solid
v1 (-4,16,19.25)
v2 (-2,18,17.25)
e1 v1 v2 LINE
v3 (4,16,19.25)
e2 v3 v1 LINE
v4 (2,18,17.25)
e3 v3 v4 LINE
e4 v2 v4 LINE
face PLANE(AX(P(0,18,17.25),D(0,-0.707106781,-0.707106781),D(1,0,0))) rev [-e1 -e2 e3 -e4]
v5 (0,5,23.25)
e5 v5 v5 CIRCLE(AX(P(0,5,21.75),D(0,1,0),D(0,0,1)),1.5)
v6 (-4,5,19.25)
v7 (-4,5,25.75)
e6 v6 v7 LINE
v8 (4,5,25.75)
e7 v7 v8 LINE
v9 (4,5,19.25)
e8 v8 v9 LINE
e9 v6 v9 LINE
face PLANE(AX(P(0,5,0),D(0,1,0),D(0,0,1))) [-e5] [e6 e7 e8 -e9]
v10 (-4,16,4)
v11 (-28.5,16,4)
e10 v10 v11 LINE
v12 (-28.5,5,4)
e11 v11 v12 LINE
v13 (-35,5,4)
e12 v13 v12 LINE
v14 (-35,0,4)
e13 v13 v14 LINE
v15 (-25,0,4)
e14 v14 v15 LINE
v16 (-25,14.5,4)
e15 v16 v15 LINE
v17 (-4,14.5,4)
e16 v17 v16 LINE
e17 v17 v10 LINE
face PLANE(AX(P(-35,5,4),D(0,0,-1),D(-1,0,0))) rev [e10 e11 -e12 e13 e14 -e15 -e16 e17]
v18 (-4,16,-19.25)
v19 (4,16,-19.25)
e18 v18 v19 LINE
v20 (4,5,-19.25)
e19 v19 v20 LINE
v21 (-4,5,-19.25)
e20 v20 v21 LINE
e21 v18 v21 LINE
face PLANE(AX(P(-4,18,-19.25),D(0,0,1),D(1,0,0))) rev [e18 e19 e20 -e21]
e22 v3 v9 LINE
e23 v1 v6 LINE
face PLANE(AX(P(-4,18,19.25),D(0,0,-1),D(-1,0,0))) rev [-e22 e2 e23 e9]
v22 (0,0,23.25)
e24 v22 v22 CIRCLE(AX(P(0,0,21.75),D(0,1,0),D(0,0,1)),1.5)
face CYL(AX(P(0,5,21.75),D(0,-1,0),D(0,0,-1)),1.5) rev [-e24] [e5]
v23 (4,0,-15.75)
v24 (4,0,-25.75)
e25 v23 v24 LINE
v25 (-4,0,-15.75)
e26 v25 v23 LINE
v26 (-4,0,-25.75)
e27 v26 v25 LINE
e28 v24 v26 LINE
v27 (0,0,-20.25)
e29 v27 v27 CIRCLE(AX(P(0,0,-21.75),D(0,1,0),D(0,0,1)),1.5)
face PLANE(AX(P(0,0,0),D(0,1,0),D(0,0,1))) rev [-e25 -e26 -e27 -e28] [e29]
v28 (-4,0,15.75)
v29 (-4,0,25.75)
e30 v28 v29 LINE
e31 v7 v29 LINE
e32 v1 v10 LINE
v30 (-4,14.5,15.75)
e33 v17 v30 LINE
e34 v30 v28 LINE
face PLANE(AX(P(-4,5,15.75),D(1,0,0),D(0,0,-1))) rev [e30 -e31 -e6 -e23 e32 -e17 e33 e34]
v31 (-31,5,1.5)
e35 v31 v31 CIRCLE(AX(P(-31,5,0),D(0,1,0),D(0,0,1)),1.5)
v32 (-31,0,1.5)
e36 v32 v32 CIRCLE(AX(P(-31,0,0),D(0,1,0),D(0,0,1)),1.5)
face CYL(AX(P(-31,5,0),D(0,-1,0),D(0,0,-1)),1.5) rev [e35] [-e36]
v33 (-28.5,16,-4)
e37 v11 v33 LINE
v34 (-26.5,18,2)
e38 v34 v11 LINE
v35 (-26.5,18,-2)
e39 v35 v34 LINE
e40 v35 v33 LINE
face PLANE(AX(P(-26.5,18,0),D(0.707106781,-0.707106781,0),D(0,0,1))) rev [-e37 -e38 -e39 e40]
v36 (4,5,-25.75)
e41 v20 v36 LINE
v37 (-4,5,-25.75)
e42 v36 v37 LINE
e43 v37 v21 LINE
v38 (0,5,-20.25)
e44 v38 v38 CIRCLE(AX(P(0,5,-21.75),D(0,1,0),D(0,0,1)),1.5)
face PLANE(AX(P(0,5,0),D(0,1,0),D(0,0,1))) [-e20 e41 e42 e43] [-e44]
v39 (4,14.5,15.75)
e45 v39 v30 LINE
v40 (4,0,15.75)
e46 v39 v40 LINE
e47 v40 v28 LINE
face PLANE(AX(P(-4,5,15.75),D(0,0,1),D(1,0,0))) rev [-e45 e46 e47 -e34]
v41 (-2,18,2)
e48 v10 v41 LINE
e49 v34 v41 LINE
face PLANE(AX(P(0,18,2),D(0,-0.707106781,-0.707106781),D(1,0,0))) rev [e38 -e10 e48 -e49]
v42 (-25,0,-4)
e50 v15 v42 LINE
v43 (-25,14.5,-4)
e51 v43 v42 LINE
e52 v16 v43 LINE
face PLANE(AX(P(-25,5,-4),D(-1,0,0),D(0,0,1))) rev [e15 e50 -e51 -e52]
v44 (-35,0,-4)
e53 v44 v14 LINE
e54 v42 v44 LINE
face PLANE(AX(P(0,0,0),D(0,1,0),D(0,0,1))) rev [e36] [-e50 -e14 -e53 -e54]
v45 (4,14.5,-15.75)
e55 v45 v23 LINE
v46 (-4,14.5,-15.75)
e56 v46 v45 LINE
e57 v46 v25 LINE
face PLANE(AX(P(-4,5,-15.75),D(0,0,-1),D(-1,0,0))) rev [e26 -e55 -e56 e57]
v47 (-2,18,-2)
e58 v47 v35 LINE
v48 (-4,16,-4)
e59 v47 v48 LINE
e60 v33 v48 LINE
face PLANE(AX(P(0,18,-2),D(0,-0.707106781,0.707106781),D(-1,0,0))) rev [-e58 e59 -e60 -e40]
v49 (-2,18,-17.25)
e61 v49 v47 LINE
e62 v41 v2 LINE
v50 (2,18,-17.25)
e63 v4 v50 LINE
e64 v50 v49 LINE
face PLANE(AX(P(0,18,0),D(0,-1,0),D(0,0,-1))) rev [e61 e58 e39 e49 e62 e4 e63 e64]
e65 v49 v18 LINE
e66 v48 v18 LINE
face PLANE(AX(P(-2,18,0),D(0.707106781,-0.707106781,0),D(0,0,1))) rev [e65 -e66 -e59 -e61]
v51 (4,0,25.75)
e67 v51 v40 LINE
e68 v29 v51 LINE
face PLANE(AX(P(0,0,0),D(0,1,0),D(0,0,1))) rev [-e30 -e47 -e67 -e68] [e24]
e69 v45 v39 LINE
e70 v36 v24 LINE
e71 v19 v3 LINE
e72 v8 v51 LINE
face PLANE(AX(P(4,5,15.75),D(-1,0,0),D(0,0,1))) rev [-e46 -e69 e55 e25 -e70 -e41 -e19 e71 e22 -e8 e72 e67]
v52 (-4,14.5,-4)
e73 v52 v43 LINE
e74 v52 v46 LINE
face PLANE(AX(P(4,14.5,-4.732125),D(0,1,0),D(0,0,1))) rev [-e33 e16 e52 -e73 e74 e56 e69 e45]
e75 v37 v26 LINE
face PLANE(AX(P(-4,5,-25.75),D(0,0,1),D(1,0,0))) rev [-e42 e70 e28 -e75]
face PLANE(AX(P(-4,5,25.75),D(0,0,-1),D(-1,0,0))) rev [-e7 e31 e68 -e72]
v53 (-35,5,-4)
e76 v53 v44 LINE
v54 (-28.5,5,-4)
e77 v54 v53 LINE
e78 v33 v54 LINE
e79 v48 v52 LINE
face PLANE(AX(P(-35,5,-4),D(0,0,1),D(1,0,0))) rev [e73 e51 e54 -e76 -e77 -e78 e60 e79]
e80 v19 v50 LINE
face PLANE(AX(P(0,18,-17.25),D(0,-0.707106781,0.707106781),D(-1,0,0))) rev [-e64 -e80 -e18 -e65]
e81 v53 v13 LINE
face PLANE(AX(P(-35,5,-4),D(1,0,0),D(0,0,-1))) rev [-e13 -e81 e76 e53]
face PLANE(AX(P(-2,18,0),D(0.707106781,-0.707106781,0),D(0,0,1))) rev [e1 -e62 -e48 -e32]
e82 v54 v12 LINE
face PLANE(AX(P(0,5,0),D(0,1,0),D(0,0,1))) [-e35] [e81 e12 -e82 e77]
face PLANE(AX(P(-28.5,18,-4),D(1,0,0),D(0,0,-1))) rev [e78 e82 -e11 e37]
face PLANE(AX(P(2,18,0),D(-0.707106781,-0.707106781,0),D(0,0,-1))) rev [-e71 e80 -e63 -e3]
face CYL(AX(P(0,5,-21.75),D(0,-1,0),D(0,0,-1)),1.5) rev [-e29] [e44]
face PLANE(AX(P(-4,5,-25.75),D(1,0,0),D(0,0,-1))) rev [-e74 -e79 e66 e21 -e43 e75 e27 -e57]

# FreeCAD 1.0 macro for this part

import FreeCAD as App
import Part
import Sketcher
Q = App.Units.Quantity


def edges_at(feature, points):
    """Names of the edges that pass closest to the given points."""
    edges = feature.Shape.Edges
    near = lambda p: min(range(len(edges)), key=lambda i: edges[i].distToShape(Part.Vertex(*p))[0])
    return sorted({f"Edge{near(p) + 1}" for p in points})


def add_polygon(sketch, points):
    """Adds a closed chain of lines whose ends are joined by coincident constraints."""
    first, n = sketch.GeometryCount, len(points)
    for a, b in zip(points, points[1:] + points[:1]):
        sketch.addGeometry(Part.LineSegment(App.Vector(*a, 0), App.Vector(*b, 0)), False)
    for i in range(n):
        sketch.addConstraint(Sketcher.Constraint("Coincident", first + i, 2, first + (i + 1) % n, 1))

doc = App.newDocument("Part")
body = doc.addObject("PartDesign::Body", "Body")

# Sketch on XZ plane
sketch1 = body.newObject("Sketcher::SketchObject", "Sketch")
sketch1.AttachmentSupport = (doc.getObject("XZ_Plane"), [""])
sketch1.MapMode = "FlatFace"
add_polygon(sketch1, [(-35, -4), (-35, 4), (-25, 4), (-25, -4)])  # lines 0-3
sketch1.addGeometry(Part.Circle(App.Vector(-31, 0, 0), App.Vector(0, 0, 1), 1.5), False)  # 4
sketch1.addConstraint(Sketcher.Constraint("Vertical", 0))
sketch1.addConstraint(Sketcher.Constraint("Horizontal", 1))
sketch1.addConstraint(Sketcher.Constraint("Vertical", 2))
sketch1.addConstraint(Sketcher.Constraint("Horizontal", 3))
sketch1.addConstraint(Sketcher.Constraint("PointOnObject", 4, 3, -1))
sketch1.addConstraint(Sketcher.Constraint("Diameter", 4, Q("3 mm")))
sketch1.addConstraint(Sketcher.Constraint("DistanceX", 1, 1, 1, 2, Q("10 mm")))
sketch1.addConstraint(Sketcher.Constraint("DistanceY", 0, 1, 0, 2, Q("8 mm")))
sketch1.addConstraint(Sketcher.Constraint("DistanceX", 4, 3, -1, 1, Q("31 mm")))
sketch1.addConstraint(Sketcher.Constraint("DistanceX", 0, 2, -1, 1, Q("35 mm")))
sketch1.addConstraint(Sketcher.Constraint("DistanceY", -1, 1, 0, 2, Q("4 mm")))
pad1 = body.newObject("PartDesign::Pad", "Pad")
pad1.Profile = sketch1
pad1.Length = 5
pad1.Reversed = True
body2 = doc.addObject("PartDesign::Body", "Body001")

# Sketch on XZ plane
sketch2 = body2.newObject("Sketcher::SketchObject", "Sketch001")
sketch2.AttachmentSupport = (doc.getObject("XZ_Plane001"), [""])
sketch2.MapMode = "FlatFace"
add_polygon(sketch2, [(-4, -25.8), (-4, -15.8), (4, -15.8), (4, -25.8)])  # lines 0-3
sketch2.addGeometry(Part.Circle(App.Vector(0, -21.8, 0), App.Vector(0, 0, 1), 1.5), False)  # 4
sketch2.addConstraint(Sketcher.Constraint("Vertical", 0))
sketch2.addConstraint(Sketcher.Constraint("Horizontal", 1))
sketch2.addConstraint(Sketcher.Constraint("Vertical", 2))
sketch2.addConstraint(Sketcher.Constraint("Horizontal", 3))
sketch2.addConstraint(Sketcher.Constraint("PointOnObject", 4, 3, -2))
sketch2.addConstraint(Sketcher.Constraint("Diameter", 4, Q("3 mm")))
sketch2.addConstraint(Sketcher.Constraint("DistanceX", 1, 1, 1, 2, Q("8 mm")))
sketch2.addConstraint(Sketcher.Constraint("DistanceY", 0, 1, 0, 2, Q("10 mm")))
sketch2.addConstraint(Sketcher.Constraint("DistanceX", 0, 2, -1, 1, Q("4 mm")))
sketch2.addConstraint(Sketcher.Constraint("DistanceY", 4, 3, 0, 2, Q("6 mm")))
sketch2.addConstraint(Sketcher.Constraint("DistanceY", 4, 3, -1, 1, Q("21.75 mm")))
pad2 = body2.newObject("PartDesign::Pad", "Pad001")
pad2.Profile = sketch2
pad2.Length = 5
pad2.Reversed = True
body3 = doc.addObject("PartDesign::Body", "Body002")

# Sketch on XZ plane
sketch3 = body3.newObject("Sketcher::SketchObject", "Sketch002")
sketch3.AttachmentSupport = (doc.getObject("XZ_Plane002"), [""])
sketch3.MapMode = "FlatFace"
add_polygon(sketch3, [(-4, 15.8), (-4, 25.8), (4, 25.8), (4, 15.8)])  # lines 0-3
sketch3.addGeometry(Part.Circle(App.Vector(0, 21.8, 0), App.Vector(0, 0, 1), 1.5), False)  # 4
sketch3.addConstraint(Sketcher.Constraint("Vertical", 0))
sketch3.addConstraint(Sketcher.Constraint("Horizontal", 1))
sketch3.addConstraint(Sketcher.Constraint("Vertical", 2))
sketch3.addConstraint(Sketcher.Constraint("Horizontal", 3))
sketch3.addConstraint(Sketcher.Constraint("PointOnObject", 4, 3, -2))
sketch3.addConstraint(Sketcher.Constraint("Diameter", 4, Q("3 mm")))
sketch3.addConstraint(Sketcher.Constraint("DistanceX", 1, 1, 1, 2, Q("8 mm")))
sketch3.addConstraint(Sketcher.Constraint("DistanceY", 0, 1, 0, 2, Q("10 mm")))
sketch3.addConstraint(Sketcher.Constraint("DistanceX", 0, 2, -1, 1, Q("4 mm")))
sketch3.addConstraint(Sketcher.Constraint("DistanceY", 4, 3, 0, 2, Q("4 mm")))
sketch3.addConstraint(Sketcher.Constraint("DistanceY", -1, 1, 4, 3, Q("21.75 mm")))
pad3 = body3.newObject("PartDesign::Pad", "Pad002")
pad3.Profile = sketch3
pad3.Length = 5
pad3.Reversed = True
body.AllowCompound = True
doc.recompute()

boolean = body.newObject("PartDesign::Boolean", "Boolean")
boolean.Type = "Fuse"
boolean.addObjects([body2])
doc.recompute()

boolean2 = body.newObject("PartDesign::Boolean", "Boolean001")
boolean2.Type = "Fuse"
boolean2.addObjects([body3])

# Sketch on XZ plane
sketch4 = body.newObject("Sketcher::SketchObject", "Sketch003")
sketch4.AttachmentSupport = (doc.getObject("XZ_Plane"), [""])
sketch4.MapMode = "FlatFace"
sketch4.AttachmentOffset = App.Placement(App.Vector(0, 0, -5), App.Rotation())
add_polygon(sketch4, [(-28.5, -4), (-28.5, 4), (-25, 4), (-25, -4)])  # lines 0-3
add_polygon(sketch4, [(-4, -19.2), (-4, -15.8), (4, -15.8), (4, -19.2)])  # lines 4-7
add_polygon(sketch4, [(-4, 15.8), (-4, 19.2), (4, 19.2), (4, 15.8)])  # lines 8-11
sketch4.addConstraint(Sketcher.Constraint("Vertical", 0))
sketch4.addConstraint(Sketcher.Constraint("Horizontal", 1))
sketch4.addConstraint(Sketcher.Constraint("Vertical", 2))
sketch4.addConstraint(Sketcher.Constraint("Horizontal", 3))
sketch4.addConstraint(Sketcher.Constraint("Vertical", 4))
sketch4.addConstraint(Sketcher.Constraint("Horizontal", 5))
sketch4.addConstraint(Sketcher.Constraint("Vertical", 6))
sketch4.addConstraint(Sketcher.Constraint("Horizontal", 7))
sketch4.addConstraint(Sketcher.Constraint("Vertical", 8))
sketch4.addConstraint(Sketcher.Constraint("Horizontal", 9))
sketch4.addConstraint(Sketcher.Constraint("Vertical", 10))
sketch4.addConstraint(Sketcher.Constraint("Horizontal", 11))
sketch4.addConstraint(Sketcher.Constraint("Symmetric", 6, 2, 8, 2, -1, 1))
sketch4.addConstraint(Sketcher.Constraint("Symmetric", 4, 2, 10, 2, -1, 1))
sketch4.addConstraint(Sketcher.Constraint("Vertical", 7, 2, 8, 2))
sketch4.addConstraint(Sketcher.Constraint("Equal", 11, 0))
sketch4.addConstraint(Sketcher.Constraint("Equal", 3, 4))
sketch4.addConstraint(Sketcher.Constraint("DistanceX", 5, 1, 5, 2, Q("8 mm")))
sketch4.addConstraint(Sketcher.Constraint("DistanceX", 1, 1, 1, 2, Q("3.5 mm")))
sketch4.addConstraint(Sketcher.Constraint("DistanceY", -1, 1, 0, 2, Q("4 mm")))
sketch4.addConstraint(Sketcher.Constraint("DistanceX", 1, 2, -1, 1, Q("25 mm")))
sketch4.addConstraint(Sketcher.Constraint("DistanceY", 4, 2, 8, 2, Q("35 mm")))
pad4 = body.newObject("PartDesign::Pad", "Pad003")
pad4.Profile = sketch4
pad4.Length = 13
pad4.Reversed = True

# Sketch on YZ plane
sketch5 = body.newObject("Sketcher::SketchObject", "Sketch004")
sketch5.AttachmentSupport = (doc.getObject("YZ_Plane"), [""])
sketch5.MapMode = "FlatFace"
sketch5.AttachmentOffset = App.Placement(App.Vector(0, 0, -25), App.Rotation())
add_polygon(sketch5, [(18, 4), (14.5, 4), (14.5, -4), (18, -4)])  # lines 0-3
sketch5.addConstraint(Sketcher.Constraint("Horizontal", 0))
sketch5.addConstraint(Sketcher.Constraint("Vertical", 1))
sketch5.addConstraint(Sketcher.Constraint("Horizontal", 2))
sketch5.addConstraint(Sketcher.Constraint("Vertical", 3))
sketch5.addConstraint(Sketcher.Constraint("DistanceY", 1, 2, 1, 1, Q("8 mm")))
sketch5.addConstraint(Sketcher.Constraint("DistanceX", 0, 2, 0, 1, Q("3.5 mm")))
sketch5.addConstraint(Sketcher.Constraint("DistanceY", -1, 1, 0, 2, Q("4 mm")))
sketch5.addConstraint(Sketcher.Constraint("DistanceX", -1, 1, 2, 2, Q("18 mm")))
pad5 = body.newObject("PartDesign::Pad", "Pad004")
pad5.Profile = sketch5
pad5.Length = 29

# Sketch on XY plane
sketch6 = body.newObject("Sketcher::SketchObject", "Sketch005")
sketch6.AttachmentSupport = (doc.getObject("XY_Plane"), [""])
sketch6.MapMode = "FlatFace"
sketch6.AttachmentOffset = App.Placement(App.Vector(0, 0, -15.75), App.Rotation())
add_polygon(sketch6, [(-4, 18), (-4, 14.5), (4, 14.5), (4, 18)])  # lines 0-3
sketch6.addConstraint(Sketcher.Constraint("Vertical", 0))
sketch6.addConstraint(Sketcher.Constraint("Horizontal", 1))
sketch6.addConstraint(Sketcher.Constraint("Vertical", 2))
sketch6.addConstraint(Sketcher.Constraint("Horizontal", 3))
sketch6.addConstraint(Sketcher.Constraint("DistanceX", 1, 1, 1, 2, Q("8 mm")))
sketch6.addConstraint(Sketcher.Constraint("DistanceY", 0, 2, 0, 1, Q("3.5 mm")))
sketch6.addConstraint(Sketcher.Constraint("DistanceX", 0, 2, -1, 1, Q("4 mm")))
sketch6.addConstraint(Sketcher.Constraint("DistanceY", -1, 1, 2, 2, Q("18 mm")))
pad6 = body.newObject("PartDesign::Pad", "Pad005")
pad6.Profile = sketch6
pad6.Length = 11.75

# Sketch on XY plane
sketch7 = body.newObject("Sketcher::SketchObject", "Sketch006")
sketch7.AttachmentSupport = (doc.getObject("XY_Plane"), [""])
sketch7.MapMode = "FlatFace"
sketch7.AttachmentOffset = App.Placement(App.Vector(0, 0, 15.75), App.Rotation())
add_polygon(sketch7, [(4, 18), (4, 14.5), (-4, 14.5), (-4, 18)])  # lines 0-3
sketch7.addConstraint(Sketcher.Constraint("Vertical", 0))
sketch7.addConstraint(Sketcher.Constraint("Horizontal", 1))
sketch7.addConstraint(Sketcher.Constraint("Vertical", 2))
sketch7.addConstraint(Sketcher.Constraint("Horizontal", 3))
sketch7.addConstraint(Sketcher.Constraint("DistanceX", 1, 2, 1, 1, Q("8 mm")))
sketch7.addConstraint(Sketcher.Constraint("DistanceY", 0, 2, 0, 1, Q("3.5 mm")))
sketch7.addConstraint(Sketcher.Constraint("DistanceX", -1, 1, 0, 2, Q("4 mm")))
sketch7.addConstraint(Sketcher.Constraint("DistanceY", -1, 1, 2, 2, Q("18 mm")))
pad7 = body.newObject("PartDesign::Pad", "Pad006")
pad7.Profile = sketch7
pad7.Length = 11.75
pad7.Reversed = True
doc.recompute()

chamfer = body.newObject("PartDesign::Chamfer", "Chamfer")
chamfer.Base = (pad7, edges_at(pad7, [
    (-4, 18, 11.625),
    (0, 18, 19.25),
    (4, 18, 0),
    (-4, 18, -11.625),
    (-16.25, 18, -4),
    (-28.5, 18, 0),
    (-16.25, 18, 4),
    (0, 18, -19.25),
]))
chamfer.Size = 2

doc.recompute()
